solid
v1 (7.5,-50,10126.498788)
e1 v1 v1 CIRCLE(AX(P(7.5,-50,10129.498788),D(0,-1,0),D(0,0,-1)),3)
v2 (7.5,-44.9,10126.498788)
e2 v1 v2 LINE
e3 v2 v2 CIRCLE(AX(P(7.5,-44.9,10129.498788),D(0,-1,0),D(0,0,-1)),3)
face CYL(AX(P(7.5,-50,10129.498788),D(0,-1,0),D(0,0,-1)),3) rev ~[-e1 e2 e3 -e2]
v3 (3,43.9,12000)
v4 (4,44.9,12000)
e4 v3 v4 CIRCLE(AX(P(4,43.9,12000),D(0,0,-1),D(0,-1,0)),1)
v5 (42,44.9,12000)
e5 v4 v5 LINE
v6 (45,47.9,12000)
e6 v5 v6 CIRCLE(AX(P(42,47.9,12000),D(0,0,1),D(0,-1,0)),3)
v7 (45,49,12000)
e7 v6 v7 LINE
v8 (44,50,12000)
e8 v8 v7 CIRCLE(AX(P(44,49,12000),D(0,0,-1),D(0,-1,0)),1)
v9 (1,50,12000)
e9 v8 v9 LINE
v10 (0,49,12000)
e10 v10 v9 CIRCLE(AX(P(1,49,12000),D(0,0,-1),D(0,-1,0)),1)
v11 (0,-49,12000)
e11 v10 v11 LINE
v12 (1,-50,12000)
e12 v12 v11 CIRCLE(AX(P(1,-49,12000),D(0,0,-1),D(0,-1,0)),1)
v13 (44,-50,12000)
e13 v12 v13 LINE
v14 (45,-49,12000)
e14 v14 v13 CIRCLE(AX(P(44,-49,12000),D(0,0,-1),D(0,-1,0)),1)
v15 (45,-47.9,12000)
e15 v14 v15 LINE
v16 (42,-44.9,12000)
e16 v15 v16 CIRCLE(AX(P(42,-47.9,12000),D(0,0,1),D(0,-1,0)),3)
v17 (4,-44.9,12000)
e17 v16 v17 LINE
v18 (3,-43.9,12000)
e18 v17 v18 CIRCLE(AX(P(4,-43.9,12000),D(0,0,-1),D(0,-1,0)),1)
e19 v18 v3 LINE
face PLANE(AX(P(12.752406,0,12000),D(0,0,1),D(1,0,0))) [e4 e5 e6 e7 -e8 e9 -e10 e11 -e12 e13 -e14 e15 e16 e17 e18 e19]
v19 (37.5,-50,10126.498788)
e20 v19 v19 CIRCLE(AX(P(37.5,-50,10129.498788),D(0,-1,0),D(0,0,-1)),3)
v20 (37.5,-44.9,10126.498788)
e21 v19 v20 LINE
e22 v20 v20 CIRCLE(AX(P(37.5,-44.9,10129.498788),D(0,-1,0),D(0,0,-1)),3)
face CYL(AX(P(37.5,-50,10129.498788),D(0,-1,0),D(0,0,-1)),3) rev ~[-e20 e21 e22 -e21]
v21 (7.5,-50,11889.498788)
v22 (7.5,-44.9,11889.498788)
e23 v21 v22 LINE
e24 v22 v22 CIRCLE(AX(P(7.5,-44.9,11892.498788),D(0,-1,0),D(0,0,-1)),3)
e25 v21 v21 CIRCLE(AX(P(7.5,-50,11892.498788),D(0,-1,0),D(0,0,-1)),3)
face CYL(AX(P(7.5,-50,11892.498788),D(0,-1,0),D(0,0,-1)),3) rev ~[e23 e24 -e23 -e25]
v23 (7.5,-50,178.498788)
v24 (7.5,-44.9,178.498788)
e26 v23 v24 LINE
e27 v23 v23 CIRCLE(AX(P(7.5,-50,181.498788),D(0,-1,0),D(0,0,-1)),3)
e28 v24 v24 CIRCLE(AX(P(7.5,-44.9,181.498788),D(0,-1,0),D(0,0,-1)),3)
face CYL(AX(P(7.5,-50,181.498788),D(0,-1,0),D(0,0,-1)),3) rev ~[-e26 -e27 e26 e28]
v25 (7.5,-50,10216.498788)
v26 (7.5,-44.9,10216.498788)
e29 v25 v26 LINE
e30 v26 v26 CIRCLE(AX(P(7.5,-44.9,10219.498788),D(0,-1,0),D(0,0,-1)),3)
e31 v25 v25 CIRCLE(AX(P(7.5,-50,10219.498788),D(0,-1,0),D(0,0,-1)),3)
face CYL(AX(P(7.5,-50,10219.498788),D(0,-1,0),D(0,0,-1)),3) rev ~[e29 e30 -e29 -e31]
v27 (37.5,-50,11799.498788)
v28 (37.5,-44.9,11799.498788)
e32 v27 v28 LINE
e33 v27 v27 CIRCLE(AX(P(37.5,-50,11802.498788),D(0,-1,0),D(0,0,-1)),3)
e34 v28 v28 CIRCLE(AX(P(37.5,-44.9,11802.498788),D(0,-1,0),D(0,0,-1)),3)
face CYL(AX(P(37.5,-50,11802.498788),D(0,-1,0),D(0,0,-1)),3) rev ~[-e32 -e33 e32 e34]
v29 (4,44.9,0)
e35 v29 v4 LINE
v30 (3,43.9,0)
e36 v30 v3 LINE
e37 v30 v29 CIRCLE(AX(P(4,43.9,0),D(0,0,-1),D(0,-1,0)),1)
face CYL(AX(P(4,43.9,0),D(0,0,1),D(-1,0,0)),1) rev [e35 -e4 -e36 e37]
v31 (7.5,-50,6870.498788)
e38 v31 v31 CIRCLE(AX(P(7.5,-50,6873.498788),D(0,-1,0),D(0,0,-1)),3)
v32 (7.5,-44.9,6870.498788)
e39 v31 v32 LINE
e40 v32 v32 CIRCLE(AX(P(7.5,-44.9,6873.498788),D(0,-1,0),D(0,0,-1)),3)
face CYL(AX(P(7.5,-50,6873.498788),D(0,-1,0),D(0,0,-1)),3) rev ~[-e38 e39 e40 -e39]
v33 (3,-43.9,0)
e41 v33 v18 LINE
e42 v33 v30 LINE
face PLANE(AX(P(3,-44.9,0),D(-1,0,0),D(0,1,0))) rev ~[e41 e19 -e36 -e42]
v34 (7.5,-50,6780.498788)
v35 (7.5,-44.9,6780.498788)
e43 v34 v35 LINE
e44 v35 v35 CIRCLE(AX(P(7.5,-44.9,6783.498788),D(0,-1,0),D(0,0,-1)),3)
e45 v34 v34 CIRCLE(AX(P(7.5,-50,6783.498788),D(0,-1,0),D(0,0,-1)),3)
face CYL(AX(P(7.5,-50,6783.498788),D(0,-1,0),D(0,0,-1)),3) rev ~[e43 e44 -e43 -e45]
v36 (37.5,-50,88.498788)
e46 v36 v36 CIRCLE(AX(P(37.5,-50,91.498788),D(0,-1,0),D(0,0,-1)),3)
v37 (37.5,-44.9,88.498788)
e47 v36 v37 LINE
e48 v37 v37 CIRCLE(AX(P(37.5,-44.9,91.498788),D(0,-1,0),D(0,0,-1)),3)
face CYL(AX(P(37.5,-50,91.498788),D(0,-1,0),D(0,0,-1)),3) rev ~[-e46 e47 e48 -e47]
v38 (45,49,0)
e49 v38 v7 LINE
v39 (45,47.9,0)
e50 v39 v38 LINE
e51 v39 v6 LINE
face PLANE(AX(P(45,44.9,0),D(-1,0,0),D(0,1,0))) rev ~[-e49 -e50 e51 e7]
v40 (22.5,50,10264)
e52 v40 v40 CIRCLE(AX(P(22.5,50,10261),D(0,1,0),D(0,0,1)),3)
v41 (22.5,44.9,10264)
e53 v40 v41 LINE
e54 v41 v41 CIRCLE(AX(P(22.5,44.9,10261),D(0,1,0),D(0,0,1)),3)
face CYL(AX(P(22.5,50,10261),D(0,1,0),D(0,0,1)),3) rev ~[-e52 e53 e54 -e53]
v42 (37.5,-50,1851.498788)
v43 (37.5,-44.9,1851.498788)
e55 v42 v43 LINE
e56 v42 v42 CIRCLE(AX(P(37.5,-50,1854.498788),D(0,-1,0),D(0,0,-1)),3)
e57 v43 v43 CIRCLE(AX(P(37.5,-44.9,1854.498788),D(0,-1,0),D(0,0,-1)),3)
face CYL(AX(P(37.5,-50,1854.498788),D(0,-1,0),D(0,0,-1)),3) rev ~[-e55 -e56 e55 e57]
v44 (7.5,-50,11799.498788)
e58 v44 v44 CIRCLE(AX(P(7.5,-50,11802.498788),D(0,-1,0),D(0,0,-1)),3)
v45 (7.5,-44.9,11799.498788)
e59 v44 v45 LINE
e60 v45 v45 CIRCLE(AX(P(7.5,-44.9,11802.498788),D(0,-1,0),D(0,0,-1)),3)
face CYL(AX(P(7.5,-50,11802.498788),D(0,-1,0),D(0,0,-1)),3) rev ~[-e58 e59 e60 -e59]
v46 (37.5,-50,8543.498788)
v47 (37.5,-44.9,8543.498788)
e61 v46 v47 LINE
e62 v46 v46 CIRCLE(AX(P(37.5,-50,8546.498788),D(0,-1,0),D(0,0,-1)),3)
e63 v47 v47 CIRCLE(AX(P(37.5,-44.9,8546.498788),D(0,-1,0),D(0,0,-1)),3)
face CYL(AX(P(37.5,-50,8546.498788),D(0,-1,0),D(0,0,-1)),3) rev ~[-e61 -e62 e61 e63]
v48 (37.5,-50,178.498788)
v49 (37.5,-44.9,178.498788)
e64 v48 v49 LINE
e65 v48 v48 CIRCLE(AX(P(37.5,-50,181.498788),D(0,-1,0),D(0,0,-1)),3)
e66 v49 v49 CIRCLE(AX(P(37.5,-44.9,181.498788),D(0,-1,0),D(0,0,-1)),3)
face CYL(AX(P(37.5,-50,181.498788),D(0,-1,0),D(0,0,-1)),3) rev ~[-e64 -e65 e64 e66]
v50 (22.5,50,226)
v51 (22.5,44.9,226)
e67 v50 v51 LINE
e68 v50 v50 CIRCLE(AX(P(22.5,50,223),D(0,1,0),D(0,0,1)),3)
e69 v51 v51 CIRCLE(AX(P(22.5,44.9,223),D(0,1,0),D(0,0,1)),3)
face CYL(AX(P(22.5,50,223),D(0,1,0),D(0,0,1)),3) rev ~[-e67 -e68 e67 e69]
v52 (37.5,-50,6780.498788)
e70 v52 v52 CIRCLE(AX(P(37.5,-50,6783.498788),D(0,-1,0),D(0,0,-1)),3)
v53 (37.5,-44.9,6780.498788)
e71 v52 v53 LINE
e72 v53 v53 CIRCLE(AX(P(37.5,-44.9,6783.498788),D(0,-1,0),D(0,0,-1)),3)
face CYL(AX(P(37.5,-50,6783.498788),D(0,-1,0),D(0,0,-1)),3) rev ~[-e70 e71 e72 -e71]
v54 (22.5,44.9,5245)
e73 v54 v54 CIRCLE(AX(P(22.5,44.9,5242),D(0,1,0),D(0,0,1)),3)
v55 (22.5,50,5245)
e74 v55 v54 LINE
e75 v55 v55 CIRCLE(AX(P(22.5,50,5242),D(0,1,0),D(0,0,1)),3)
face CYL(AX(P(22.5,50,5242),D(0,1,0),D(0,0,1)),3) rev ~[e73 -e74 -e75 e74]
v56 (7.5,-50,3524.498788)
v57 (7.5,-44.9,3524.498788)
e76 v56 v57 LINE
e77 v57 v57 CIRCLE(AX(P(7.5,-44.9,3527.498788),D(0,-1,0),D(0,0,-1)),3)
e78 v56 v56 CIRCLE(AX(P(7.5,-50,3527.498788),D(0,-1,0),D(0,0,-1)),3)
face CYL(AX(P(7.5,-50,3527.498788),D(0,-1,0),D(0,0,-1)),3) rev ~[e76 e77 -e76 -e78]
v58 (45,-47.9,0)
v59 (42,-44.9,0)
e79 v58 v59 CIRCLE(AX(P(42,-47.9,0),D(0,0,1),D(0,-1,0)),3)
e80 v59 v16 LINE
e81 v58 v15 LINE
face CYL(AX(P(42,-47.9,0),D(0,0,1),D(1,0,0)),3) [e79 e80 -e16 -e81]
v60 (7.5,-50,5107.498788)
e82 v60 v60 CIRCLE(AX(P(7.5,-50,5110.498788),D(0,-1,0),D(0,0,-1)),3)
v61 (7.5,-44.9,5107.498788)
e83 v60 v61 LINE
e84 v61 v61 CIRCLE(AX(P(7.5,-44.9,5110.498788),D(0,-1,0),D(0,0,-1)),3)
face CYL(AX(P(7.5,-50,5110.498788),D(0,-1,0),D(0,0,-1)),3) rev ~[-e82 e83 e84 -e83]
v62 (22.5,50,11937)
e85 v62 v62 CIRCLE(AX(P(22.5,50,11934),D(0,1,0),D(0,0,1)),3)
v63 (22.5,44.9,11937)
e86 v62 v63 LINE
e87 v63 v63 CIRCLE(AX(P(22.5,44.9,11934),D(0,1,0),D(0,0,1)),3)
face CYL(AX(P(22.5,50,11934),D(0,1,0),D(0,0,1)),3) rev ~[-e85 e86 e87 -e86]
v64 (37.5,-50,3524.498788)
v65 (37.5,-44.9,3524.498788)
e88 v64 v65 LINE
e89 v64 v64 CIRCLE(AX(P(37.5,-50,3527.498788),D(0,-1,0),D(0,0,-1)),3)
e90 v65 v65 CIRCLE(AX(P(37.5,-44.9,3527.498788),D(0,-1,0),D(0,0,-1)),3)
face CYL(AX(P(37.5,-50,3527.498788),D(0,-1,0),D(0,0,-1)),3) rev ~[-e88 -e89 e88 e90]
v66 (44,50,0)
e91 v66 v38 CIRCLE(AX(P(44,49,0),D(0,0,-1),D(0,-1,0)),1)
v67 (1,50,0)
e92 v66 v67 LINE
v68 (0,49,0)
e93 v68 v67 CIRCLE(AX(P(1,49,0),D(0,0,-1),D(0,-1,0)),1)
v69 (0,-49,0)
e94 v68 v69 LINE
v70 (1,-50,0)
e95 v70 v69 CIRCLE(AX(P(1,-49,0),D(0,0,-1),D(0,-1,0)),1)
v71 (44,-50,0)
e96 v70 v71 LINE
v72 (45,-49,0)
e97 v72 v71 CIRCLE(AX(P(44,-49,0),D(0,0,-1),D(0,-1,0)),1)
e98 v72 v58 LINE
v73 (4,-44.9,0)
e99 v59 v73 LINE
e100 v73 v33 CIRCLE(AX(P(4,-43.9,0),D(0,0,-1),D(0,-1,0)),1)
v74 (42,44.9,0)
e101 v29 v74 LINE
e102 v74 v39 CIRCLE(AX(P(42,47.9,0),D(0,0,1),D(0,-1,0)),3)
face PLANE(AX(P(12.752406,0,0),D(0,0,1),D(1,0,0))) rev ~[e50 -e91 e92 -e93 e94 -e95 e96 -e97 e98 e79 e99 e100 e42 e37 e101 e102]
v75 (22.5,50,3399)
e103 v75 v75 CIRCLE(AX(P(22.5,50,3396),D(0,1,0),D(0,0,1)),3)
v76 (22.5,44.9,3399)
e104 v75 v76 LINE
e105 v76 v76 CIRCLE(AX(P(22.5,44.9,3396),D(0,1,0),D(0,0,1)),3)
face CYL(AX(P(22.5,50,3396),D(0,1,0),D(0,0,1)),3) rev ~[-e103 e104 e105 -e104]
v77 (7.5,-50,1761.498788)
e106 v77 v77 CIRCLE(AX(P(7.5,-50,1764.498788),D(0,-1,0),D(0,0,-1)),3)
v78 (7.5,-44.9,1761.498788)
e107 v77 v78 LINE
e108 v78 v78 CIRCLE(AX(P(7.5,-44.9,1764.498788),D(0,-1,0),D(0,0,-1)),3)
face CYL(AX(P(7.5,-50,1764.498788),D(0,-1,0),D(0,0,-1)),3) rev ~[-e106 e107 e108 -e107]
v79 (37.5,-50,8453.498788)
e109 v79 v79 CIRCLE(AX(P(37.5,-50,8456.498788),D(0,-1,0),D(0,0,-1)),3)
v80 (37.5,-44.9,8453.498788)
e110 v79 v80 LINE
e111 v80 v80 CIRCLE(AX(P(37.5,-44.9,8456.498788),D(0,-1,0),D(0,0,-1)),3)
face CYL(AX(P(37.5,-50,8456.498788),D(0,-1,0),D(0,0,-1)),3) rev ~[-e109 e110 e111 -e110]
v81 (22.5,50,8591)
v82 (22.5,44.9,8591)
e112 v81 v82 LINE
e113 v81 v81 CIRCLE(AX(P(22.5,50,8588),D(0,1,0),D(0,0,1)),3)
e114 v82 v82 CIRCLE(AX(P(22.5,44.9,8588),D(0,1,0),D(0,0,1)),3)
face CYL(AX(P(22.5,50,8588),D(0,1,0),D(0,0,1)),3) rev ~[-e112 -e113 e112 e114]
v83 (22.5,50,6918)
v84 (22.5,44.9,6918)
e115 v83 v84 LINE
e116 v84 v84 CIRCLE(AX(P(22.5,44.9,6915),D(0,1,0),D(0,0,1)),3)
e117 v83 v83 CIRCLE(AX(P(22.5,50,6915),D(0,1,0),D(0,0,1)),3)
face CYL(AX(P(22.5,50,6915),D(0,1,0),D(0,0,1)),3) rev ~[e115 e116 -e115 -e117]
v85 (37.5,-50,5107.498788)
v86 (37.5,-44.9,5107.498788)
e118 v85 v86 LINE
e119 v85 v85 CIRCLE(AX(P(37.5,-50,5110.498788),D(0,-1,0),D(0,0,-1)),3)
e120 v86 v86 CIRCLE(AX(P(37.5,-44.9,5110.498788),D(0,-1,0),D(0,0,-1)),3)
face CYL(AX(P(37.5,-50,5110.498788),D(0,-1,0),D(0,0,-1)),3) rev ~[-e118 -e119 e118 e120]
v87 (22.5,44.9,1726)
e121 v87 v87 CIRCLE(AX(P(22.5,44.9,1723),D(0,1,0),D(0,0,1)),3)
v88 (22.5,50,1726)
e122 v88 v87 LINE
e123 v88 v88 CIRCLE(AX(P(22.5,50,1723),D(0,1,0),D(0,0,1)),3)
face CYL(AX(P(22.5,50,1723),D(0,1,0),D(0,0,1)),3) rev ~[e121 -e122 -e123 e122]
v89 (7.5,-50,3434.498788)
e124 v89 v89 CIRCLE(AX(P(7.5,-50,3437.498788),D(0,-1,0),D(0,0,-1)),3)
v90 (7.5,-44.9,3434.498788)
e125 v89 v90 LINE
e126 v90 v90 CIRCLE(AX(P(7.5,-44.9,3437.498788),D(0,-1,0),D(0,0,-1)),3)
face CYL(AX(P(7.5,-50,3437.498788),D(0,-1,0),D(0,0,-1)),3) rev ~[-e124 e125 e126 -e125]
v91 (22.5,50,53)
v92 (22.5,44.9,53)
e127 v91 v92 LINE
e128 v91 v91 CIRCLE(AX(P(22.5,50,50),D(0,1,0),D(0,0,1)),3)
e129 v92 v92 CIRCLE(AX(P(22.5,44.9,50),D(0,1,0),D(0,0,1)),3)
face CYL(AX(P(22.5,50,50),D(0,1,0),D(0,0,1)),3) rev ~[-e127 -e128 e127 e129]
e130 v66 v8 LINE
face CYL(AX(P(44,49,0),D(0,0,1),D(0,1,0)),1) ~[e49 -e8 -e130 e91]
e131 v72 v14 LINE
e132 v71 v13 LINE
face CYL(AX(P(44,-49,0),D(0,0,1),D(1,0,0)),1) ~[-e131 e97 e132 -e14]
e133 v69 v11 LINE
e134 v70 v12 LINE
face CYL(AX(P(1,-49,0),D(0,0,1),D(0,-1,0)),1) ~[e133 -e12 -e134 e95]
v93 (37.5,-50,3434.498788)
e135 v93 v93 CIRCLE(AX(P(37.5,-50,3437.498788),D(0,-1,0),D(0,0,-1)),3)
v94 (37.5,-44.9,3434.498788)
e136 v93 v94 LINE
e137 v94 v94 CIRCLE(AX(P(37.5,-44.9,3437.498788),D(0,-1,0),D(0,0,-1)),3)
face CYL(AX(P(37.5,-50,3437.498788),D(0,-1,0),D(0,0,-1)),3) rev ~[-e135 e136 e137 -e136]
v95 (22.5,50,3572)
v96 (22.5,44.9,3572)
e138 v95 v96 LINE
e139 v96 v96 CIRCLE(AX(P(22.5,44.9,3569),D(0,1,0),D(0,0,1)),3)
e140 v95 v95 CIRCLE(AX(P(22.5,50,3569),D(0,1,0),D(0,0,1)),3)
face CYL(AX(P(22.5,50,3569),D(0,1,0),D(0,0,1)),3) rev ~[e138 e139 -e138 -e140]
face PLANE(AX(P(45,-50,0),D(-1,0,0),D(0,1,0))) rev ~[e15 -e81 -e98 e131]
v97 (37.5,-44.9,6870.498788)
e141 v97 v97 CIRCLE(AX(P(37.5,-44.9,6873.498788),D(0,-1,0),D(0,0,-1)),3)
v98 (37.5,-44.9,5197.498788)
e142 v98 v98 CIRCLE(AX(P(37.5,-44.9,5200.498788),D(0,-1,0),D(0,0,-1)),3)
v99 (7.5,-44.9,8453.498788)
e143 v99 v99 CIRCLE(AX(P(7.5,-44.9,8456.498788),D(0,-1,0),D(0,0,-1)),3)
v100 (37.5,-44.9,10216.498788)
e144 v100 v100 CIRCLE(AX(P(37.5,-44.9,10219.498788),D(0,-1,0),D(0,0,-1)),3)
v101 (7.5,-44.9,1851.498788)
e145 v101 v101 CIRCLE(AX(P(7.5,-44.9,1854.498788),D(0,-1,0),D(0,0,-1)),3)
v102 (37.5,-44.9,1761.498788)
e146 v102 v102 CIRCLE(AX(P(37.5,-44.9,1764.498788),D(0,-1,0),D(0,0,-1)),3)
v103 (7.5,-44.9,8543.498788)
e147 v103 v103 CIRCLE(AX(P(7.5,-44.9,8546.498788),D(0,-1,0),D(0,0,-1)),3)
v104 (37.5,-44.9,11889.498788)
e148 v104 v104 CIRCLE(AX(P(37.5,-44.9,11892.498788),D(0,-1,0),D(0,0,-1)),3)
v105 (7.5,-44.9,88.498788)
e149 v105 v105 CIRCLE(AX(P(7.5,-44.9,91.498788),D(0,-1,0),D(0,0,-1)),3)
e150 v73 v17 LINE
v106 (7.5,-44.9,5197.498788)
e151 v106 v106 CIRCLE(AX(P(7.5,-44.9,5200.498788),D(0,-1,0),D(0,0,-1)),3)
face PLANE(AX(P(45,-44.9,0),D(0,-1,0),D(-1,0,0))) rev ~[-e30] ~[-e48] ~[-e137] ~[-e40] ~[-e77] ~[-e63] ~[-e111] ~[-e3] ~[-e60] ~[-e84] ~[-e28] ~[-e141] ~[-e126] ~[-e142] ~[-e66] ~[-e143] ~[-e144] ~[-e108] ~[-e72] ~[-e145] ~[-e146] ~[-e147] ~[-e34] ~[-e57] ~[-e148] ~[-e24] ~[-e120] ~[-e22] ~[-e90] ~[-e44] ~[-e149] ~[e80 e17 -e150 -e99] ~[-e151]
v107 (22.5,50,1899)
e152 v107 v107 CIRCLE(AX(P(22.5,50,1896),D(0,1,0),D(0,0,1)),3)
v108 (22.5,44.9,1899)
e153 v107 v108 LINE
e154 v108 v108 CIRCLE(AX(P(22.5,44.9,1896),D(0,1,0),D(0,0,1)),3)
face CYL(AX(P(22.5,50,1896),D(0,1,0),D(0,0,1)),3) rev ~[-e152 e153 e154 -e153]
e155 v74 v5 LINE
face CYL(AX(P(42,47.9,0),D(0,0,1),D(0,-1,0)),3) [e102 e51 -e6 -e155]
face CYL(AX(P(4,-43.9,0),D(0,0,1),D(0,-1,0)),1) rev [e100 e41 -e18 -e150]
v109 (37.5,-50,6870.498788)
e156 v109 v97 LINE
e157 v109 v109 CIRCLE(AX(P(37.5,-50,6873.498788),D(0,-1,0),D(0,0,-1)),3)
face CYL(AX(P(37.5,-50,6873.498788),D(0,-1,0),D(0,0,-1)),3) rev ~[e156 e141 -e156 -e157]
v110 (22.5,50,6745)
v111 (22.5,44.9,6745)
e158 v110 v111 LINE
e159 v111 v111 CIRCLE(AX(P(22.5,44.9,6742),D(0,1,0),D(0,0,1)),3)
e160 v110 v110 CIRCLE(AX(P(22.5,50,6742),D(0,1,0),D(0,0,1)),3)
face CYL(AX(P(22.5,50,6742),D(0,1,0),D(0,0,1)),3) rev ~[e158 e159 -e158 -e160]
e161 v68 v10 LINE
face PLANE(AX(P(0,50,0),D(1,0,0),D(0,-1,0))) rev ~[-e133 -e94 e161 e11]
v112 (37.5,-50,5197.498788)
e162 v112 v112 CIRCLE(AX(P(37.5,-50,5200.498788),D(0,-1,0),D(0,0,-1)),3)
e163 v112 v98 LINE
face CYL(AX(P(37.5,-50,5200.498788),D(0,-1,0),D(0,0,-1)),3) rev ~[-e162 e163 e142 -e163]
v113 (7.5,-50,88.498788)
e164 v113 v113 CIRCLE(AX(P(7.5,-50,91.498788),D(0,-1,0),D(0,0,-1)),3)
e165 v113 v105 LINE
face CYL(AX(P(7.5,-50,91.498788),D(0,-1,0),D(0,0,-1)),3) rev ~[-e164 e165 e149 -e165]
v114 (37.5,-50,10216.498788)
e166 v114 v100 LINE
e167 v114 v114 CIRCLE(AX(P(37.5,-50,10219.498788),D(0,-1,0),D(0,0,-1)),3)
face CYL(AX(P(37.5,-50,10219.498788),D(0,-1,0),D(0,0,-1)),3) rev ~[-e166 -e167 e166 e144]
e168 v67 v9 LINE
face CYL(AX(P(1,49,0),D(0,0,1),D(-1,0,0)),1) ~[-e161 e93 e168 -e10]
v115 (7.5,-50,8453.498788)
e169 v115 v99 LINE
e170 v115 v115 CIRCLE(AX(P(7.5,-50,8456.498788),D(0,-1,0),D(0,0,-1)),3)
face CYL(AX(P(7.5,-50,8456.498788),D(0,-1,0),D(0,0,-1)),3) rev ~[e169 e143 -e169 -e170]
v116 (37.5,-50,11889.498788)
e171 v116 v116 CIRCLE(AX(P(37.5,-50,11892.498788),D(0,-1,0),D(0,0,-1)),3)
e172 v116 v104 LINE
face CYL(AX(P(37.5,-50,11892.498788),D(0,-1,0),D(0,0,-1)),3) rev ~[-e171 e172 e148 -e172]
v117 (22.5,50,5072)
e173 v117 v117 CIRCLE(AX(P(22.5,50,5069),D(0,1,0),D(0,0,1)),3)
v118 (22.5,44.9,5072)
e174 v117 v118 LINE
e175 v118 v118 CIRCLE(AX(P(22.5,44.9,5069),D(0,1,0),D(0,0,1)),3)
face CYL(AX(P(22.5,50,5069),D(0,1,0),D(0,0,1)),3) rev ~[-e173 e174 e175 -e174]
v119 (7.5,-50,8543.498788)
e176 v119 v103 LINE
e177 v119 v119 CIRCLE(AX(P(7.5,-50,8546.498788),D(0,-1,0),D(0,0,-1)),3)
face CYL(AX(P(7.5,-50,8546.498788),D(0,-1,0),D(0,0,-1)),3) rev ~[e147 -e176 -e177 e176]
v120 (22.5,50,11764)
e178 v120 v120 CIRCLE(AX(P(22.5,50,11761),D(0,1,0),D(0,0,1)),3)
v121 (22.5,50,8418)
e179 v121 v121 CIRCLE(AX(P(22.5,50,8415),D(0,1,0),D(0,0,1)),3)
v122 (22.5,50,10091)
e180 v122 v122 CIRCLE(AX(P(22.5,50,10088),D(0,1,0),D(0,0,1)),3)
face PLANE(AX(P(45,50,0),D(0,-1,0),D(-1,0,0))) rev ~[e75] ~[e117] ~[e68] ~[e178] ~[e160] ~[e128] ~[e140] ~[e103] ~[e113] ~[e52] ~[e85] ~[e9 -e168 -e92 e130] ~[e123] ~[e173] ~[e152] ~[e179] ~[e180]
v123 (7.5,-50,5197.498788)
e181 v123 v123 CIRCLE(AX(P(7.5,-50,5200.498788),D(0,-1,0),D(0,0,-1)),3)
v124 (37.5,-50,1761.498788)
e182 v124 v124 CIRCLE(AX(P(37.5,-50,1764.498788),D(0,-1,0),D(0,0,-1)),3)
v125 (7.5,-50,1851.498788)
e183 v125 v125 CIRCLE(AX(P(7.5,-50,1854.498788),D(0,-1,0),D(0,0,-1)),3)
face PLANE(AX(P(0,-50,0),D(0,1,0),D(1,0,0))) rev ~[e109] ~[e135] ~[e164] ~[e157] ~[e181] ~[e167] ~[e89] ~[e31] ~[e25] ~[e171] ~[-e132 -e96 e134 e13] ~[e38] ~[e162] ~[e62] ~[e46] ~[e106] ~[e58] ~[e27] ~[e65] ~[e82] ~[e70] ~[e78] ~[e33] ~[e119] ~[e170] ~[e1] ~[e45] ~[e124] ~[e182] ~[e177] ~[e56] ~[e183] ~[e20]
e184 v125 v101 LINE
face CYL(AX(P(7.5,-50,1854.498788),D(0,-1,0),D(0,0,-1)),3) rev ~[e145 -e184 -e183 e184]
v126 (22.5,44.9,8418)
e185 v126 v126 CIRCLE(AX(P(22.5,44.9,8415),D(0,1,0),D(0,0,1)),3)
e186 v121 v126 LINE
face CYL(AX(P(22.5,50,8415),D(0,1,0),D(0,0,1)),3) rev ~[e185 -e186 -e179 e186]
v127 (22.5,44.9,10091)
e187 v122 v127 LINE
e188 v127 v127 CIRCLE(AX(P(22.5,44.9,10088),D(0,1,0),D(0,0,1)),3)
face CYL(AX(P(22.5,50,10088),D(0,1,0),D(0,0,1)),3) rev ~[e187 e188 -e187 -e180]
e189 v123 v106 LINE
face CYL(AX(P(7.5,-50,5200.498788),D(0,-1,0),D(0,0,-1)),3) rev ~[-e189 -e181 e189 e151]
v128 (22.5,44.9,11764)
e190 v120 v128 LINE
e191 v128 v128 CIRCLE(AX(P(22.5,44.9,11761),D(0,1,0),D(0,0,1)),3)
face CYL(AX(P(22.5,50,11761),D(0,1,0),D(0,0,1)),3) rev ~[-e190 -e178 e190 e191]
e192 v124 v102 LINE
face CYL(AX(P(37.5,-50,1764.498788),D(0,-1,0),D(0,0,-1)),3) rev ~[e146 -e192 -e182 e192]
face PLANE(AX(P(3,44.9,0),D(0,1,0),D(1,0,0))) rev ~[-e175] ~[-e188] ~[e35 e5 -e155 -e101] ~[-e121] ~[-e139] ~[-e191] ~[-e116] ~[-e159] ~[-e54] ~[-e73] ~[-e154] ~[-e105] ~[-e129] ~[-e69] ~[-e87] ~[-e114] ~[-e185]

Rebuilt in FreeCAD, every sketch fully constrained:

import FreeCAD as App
import Part
import Sketcher

V = App.Vector
Q = App.Units.Quantity


def edges_at(feature, points):
    """Names of the edges that pass closest to the given points."""
    edges = feature.Shape.Edges
    near = lambda p: min(range(len(edges)), key=lambda i: edges[i].distToShape(Part.Vertex(*p))[0])
    return sorted({f"Edge{near(p) + 1}" for p in points})

doc = App.newDocument("Part")
params = doc.addObject("Spreadsheet::Sheet", "Params")
for row, (alias, value) in enumerate([
    ("sketch1_width", "45 mm"),
    ("sketch1_width2", "42 mm"),
    ("sketch1_height", "100 mm"),
    ("sketch1_height2", "5.1 mm"),
    ("pad1_length", "12000 mm"),
    ("fillet_radius", "3 mm"),
    ("fillet2_radius", "1 mm"),
    ("fillet3_radius", "1 mm"),
    ("sketch2_diameter", "6 mm"),
    ("sketch3_diameter", "6 mm"),
    ("sketch4_diameter", "6 mm"),
    ("sketch5_diameter", "6 mm"),
    ("sketch6_diameter", "6 mm"),
    ("sketch7_diameter", "6 mm"),
    ("sketch8_diameter", "6 mm"),
    ("sketch9_diameter", "6 mm"),
    ("sketch10_diameter", "6 mm"),
    ("sketch11_diameter", "6 mm"),
    ("sketch12_diameter", "6 mm"),
    ("sketch13_diameter", "6 mm"),
    ("sketch14_diameter", "6 mm"),
    ("sketch15_diameter", "6 mm"),
    ("sketch16_diameter", "6 mm"),
    ("sketch17_diameter", "6 mm"),
    ("sketch18_diameter", "6 mm"),
    ("pocket17_length", "10 mm"),
], start=1):
    params.set(f"A{row}", alias)
    params.set(f"B{row}", "=" + value)
    params.setAlias(f"B{row}", alias)

body = doc.addObject("PartDesign::Body", "Body")

sketch1 = doc.addObject("Sketcher::SketchObject", "Sketch")
body.addObject(sketch1)
sketch1.AttachmentSupport = (doc.XY_Plane, [""])
sketch1.MapMode = "FlatFace"
sketch1.addGeometry(Part.LineSegment(V(0, 50, 0), V(0, -50, 0)), False)
sketch1.addGeometry(Part.LineSegment(V(0, -50, 0), V(45, -50, 0)), False)
sketch1.addGeometry(Part.LineSegment(V(45, -50, 0), V(45, -44.9, 0)), False)
sketch1.addGeometry(Part.LineSegment(V(45, -44.9, 0), V(3, -44.9, 0)), False)
sketch1.addGeometry(Part.LineSegment(V(3, -44.9, 0), V(3, 44.9, 0)), False)
sketch1.addGeometry(Part.LineSegment(V(3, 44.9, 0), V(45, 44.9, 0)), False)
sketch1.addGeometry(Part.LineSegment(V(45, 44.9, 0), V(45, 50, 0)), False)
sketch1.addGeometry(Part.LineSegment(V(45, 50, 0), V(0, 50, 0)), False)
sketch1.addConstraint(Sketcher.Constraint("Coincident", 0, 2, 1, 1))
sketch1.addConstraint(Sketcher.Constraint("Coincident", 1, 2, 2, 1))
sketch1.addConstraint(Sketcher.Constraint("Coincident", 2, 2, 3, 1))
sketch1.addConstraint(Sketcher.Constraint("Coincident", 3, 2, 4, 1))
sketch1.addConstraint(Sketcher.Constraint("Coincident", 4, 2, 5, 1))
sketch1.addConstraint(Sketcher.Constraint("Coincident", 5, 2, 6, 1))
sketch1.addConstraint(Sketcher.Constraint("Coincident", 6, 2, 7, 1))
sketch1.addConstraint(Sketcher.Constraint("Coincident", 7, 2, 0, 1))
sketch1.addConstraint(Sketcher.Constraint("Vertical", 0))
sketch1.addConstraint(Sketcher.Constraint("Horizontal", 1))
sketch1.addConstraint(Sketcher.Constraint("Vertical", 2))
sketch1.addConstraint(Sketcher.Constraint("Horizontal", 3))
sketch1.addConstraint(Sketcher.Constraint("Vertical", 4))
sketch1.addConstraint(Sketcher.Constraint("Horizontal", 5))
sketch1.addConstraint(Sketcher.Constraint("Vertical", 6))
sketch1.addConstraint(Sketcher.Constraint("Horizontal", 7))
sketch1.addConstraint(Sketcher.Constraint("Symmetric", 0, 2, 7, 2, -1, 1))
sketch1.addConstraint(Sketcher.Constraint("Symmetric", 2, 2, 5, 2, -1))
sketch1.addConstraint(Sketcher.Constraint("DistanceX", 1, 1, 1, 2, Q("45 mm")))
sketch1.addConstraint(Sketcher.Constraint("DistanceX", 3, 2, 3, 1, Q("42 mm")))
sketch1.addConstraint(Sketcher.Constraint("DistanceY", 0, 2, 0, 1, Q("100 mm")))
sketch1.addConstraint(Sketcher.Constraint("DistanceY", 2, 1, 2, 2, Q("5.1 mm")))
sketch1.setExpression("Constraints[18]", "Params.sketch1_width")
sketch1.setExpression("Constraints[19]", "Params.sketch1_width2")
sketch1.setExpression("Constraints[20]", "Params.sketch1_height")
sketch1.setExpression("Constraints[21]", "Params.sketch1_height2")
pad1 = doc.addObject("PartDesign::Pad", "Pad")
body.addObject(pad1)
pad1.Profile = sketch1
pad1.setExpression("Length", "Params.pad1_length")
doc.recompute()

fillet = doc.addObject("PartDesign::Fillet", "Fillet")
body.addObject(fillet)
fillet.Base = (pad1, edges_at(pad1, [(45, -44.9, 6000), (45, 44.9, 6000)]))
fillet.setExpression("Radius", "Params.fillet_radius")
doc.recompute()

fillet2 = doc.addObject("PartDesign::Fillet", "Fillet001")
body.addObject(fillet2)
fillet2.Base = (fillet, edges_at(fillet, [
    (45, -50, 6000),
    (0, -50, 6000),
    (0, 50, 6000),
    (45, 50, 6000),
]))
fillet2.setExpression("Radius", "Params.fillet2_radius")
doc.recompute()

fillet3 = doc.addObject("PartDesign::Fillet", "Fillet002")
body.addObject(fillet3)
fillet3.Base = (fillet2, edges_at(fillet2, [(3, -44.9, 6000), (3, 44.9, 6000)]))
fillet3.setExpression("Radius", "Params.fillet3_radius")

sketch2 = doc.addObject("Sketcher::SketchObject", "Sketch001")
body.addObject(sketch2)
sketch2.AttachmentSupport = (doc.XZ_Plane, [""])
sketch2.MapMode = "FlatFace"
sketch2.AttachmentOffset = App.Placement(V(0, 0, -50), App.Rotation())
sketch2.addGeometry(Part.Circle(V(22.5, 50, 0), V(0, 0, 1), 3), False)
sketch2.addConstraint(Sketcher.Constraint("Diameter", 0, Q("6 mm")))
sketch2.addConstraint(Sketcher.Constraint("DistanceY", -1, 1, 0, 3, Q("50 mm")))
sketch2.addConstraint(Sketcher.Constraint("DistanceX", -1, 1, 0, 3, Q("22.5 mm")))
sketch2.setExpression("Constraints[0]", "Params.sketch2_diameter")
pocket1 = doc.addObject("PartDesign::Pocket", "Pocket")
body.addObject(pocket1)
pocket1.Profile = sketch2
pocket1.Type = "UpToFirst"
pocket1.Reversed = True

sketch3 = doc.addObject("Sketcher::SketchObject", "Sketch002")
body.addObject(sketch3)
sketch3.AttachmentSupport = (doc.XZ_Plane, [""])
sketch3.MapMode = "FlatFace"
sketch3.AttachmentOffset = App.Placement(V(0, 0, -50), App.Rotation())
sketch3.addGeometry(Part.Circle(V(22.5, 223, 0), V(0, 0, 1), 3), False)
sketch3.addConstraint(Sketcher.Constraint("Diameter", 0, Q("6 mm")))
sketch3.addConstraint(Sketcher.Constraint("DistanceY", -1, 1, 0, 3, Q("223 mm")))
sketch3.addConstraint(Sketcher.Constraint("DistanceX", -1, 1, 0, 3, Q("22.5 mm")))
sketch3.setExpression("Constraints[0]", "Params.sketch3_diameter")
pocket2 = doc.addObject("PartDesign::Pocket", "Pocket001")
body.addObject(pocket2)
pocket2.Profile = sketch3
pocket2.Type = "UpToFirst"
pocket2.Reversed = True

sketch4 = doc.addObject("Sketcher::SketchObject", "Sketch003")
body.addObject(sketch4)
sketch4.AttachmentSupport = (doc.XZ_Plane, [""])
sketch4.MapMode = "FlatFace"
sketch4.AttachmentOffset = App.Placement(V(0, 0, -50), App.Rotation())
sketch4.addGeometry(Part.Circle(V(22.5, 1723, 0), V(0, 0, 1), 3), False)
sketch4.addConstraint(Sketcher.Constraint("Diameter", 0, Q("6 mm")))
sketch4.addConstraint(Sketcher.Constraint("DistanceY", -1, 1, 0, 3, Q("1723 mm")))
sketch4.addConstraint(Sketcher.Constraint("DistanceX", -1, 1, 0, 3, Q("22.5 mm")))
sketch4.setExpression("Constraints[0]", "Params.sketch4_diameter")
pocket3 = doc.addObject("PartDesign::Pocket", "Pocket002")
body.addObject(pocket3)
pocket3.Profile = sketch4
pocket3.Type = "UpToFirst"
pocket3.Reversed = True

sketch5 = doc.addObject("Sketcher::SketchObject", "Sketch004")
body.addObject(sketch5)
sketch5.AttachmentSupport = (doc.XZ_Plane, [""])
sketch5.MapMode = "FlatFace"
sketch5.AttachmentOffset = App.Placement(V(0, 0, -50), App.Rotation())
sketch5.addGeometry(Part.Circle(V(22.5, 1896, 0), V(0, 0, 1), 3), False)
sketch5.addConstraint(Sketcher.Constraint("Diameter", 0, Q("6 mm")))
sketch5.addConstraint(Sketcher.Constraint("DistanceY", -1, 1, 0, 3, Q("1896 mm")))
sketch5.addConstraint(Sketcher.Constraint("DistanceX", -1, 1, 0, 3, Q("22.5 mm")))
sketch5.setExpression("Constraints[0]", "Params.sketch5_diameter")
pocket4 = doc.addObject("PartDesign::Pocket", "Pocket003")
body.addObject(pocket4)
pocket4.Profile = sketch5
pocket4.Type = "UpToFirst"
pocket4.Reversed = True

sketch6 = doc.addObject("Sketcher::SketchObject", "Sketch005")
body.addObject(sketch6)
sketch6.AttachmentSupport = (doc.XZ_Plane, [""])
sketch6.MapMode = "FlatFace"
sketch6.AttachmentOffset = App.Placement(V(0, 0, -50), App.Rotation())
sketch6.addGeometry(Part.Circle(V(22.5, 3396, 0), V(0, 0, 1), 3), False)
sketch6.addConstraint(Sketcher.Constraint("Diameter", 0, Q("6 mm")))
sketch6.addConstraint(Sketcher.Constraint("DistanceY", -1, 1, 0, 3, Q("3396 mm")))
sketch6.addConstraint(Sketcher.Constraint("DistanceX", -1, 1, 0, 3, Q("22.5 mm")))
sketch6.setExpression("Constraints[0]", "Params.sketch6_diameter")
pocket5 = doc.addObject("PartDesign::Pocket", "Pocket004")
body.addObject(pocket5)
pocket5.Profile = sketch6
pocket5.Type = "UpToFirst"
pocket5.Reversed = True

sketch7 = doc.addObject("Sketcher::SketchObject", "Sketch006")
body.addObject(sketch7)
sketch7.AttachmentSupport = (doc.XZ_Plane, [""])
sketch7.MapMode = "FlatFace"
sketch7.AttachmentOffset = App.Placement(V(0, 0, -50), App.Rotation())
sketch7.addGeometry(Part.Circle(V(22.5, 3569, 0), V(0, 0, 1), 3), False)
sketch7.addConstraint(Sketcher.Constraint("Diameter", 0, Q("6 mm")))
sketch7.addConstraint(Sketcher.Constraint("DistanceY", -1, 1, 0, 3, Q("3569 mm")))
sketch7.addConstraint(Sketcher.Constraint("DistanceX", -1, 1, 0, 3, Q("22.5 mm")))
sketch7.setExpression("Constraints[0]", "Params.sketch7_diameter")
pocket6 = doc.addObject("PartDesign::Pocket", "Pocket005")
body.addObject(pocket6)
pocket6.Profile = sketch7
pocket6.Type = "UpToFirst"
pocket6.Reversed = True

sketch8 = doc.addObject("Sketcher::SketchObject", "Sketch007")
body.addObject(sketch8)
sketch8.AttachmentSupport = (doc.XZ_Plane, [""])
sketch8.MapMode = "FlatFace"
sketch8.AttachmentOffset = App.Placement(V(0, 0, -50), App.Rotation())
sketch8.addGeometry(Part.Circle(V(22.5, 5069, 0), V(0, 0, 1), 3), False)
sketch8.addConstraint(Sketcher.Constraint("Diameter", 0, Q("6 mm")))
sketch8.addConstraint(Sketcher.Constraint("DistanceY", -1, 1, 0, 3, Q("5069 mm")))
sketch8.addConstraint(Sketcher.Constraint("DistanceX", -1, 1, 0, 3, Q("22.5 mm")))
sketch8.setExpression("Constraints[0]", "Params.sketch8_diameter")
pocket7 = doc.addObject("PartDesign::Pocket", "Pocket006")
body.addObject(pocket7)
pocket7.Profile = sketch8
pocket7.Type = "UpToFirst"
pocket7.Reversed = True

sketch9 = doc.addObject("Sketcher::SketchObject", "Sketch008")
body.addObject(sketch9)
sketch9.AttachmentSupport = (doc.XZ_Plane, [""])
sketch9.MapMode = "FlatFace"
sketch9.AttachmentOffset = App.Placement(V(0, 0, -50), App.Rotation())
sketch9.addGeometry(Part.Circle(V(22.5, 5242, 0), V(0, 0, 1), 3), False)
sketch9.addConstraint(Sketcher.Constraint("Diameter", 0, Q("6 mm")))
sketch9.addConstraint(Sketcher.Constraint("DistanceY", -1, 1, 0, 3, Q("5242 mm")))
sketch9.addConstraint(Sketcher.Constraint("DistanceX", -1, 1, 0, 3, Q("22.5 mm")))
sketch9.setExpression("Constraints[0]", "Params.sketch9_diameter")
pocket8 = doc.addObject("PartDesign::Pocket", "Pocket007")
body.addObject(pocket8)
pocket8.Profile = sketch9
pocket8.Type = "UpToFirst"
pocket8.Reversed = True

sketch10 = doc.addObject("Sketcher::SketchObject", "Sketch009")
body.addObject(sketch10)
sketch10.AttachmentSupport = (doc.XZ_Plane, [""])
sketch10.MapMode = "FlatFace"
sketch10.AttachmentOffset = App.Placement(V(0, 0, -50), App.Rotation())
sketch10.addGeometry(Part.Circle(V(22.5, 6742, 0), V(0, 0, 1), 3), False)
sketch10.addConstraint(Sketcher.Constraint("Diameter", 0, Q("6 mm")))
sketch10.addConstraint(Sketcher.Constraint("DistanceY", -1, 1, 0, 3, Q("6742 mm")))
sketch10.addConstraint(Sketcher.Constraint("DistanceX", -1, 1, 0, 3, Q("22.5 mm")))
sketch10.setExpression("Constraints[0]", "Params.sketch10_diameter")
pocket9 = doc.addObject("PartDesign::Pocket", "Pocket008")
body.addObject(pocket9)
pocket9.Profile = sketch10
pocket9.Type = "UpToFirst"
pocket9.Reversed = True

sketch11 = doc.addObject("Sketcher::SketchObject", "Sketch010")
body.addObject(sketch11)
sketch11.AttachmentSupport = (doc.XZ_Plane, [""])
sketch11.MapMode = "FlatFace"
sketch11.AttachmentOffset = App.Placement(V(0, 0, -50), App.Rotation())
sketch11.addGeometry(Part.Circle(V(22.5, 6915, 0), V(0, 0, 1), 3), False)
sketch11.addConstraint(Sketcher.Constraint("Diameter", 0, Q("6 mm")))
sketch11.addConstraint(Sketcher.Constraint("DistanceY", -1, 1, 0, 3, Q("6915 mm")))
sketch11.addConstraint(Sketcher.Constraint("DistanceX", -1, 1, 0, 3, Q("22.5 mm")))
sketch11.setExpression("Constraints[0]", "Params.sketch11_diameter")
pocket10 = doc.addObject("PartDesign::Pocket", "Pocket009")
body.addObject(pocket10)
pocket10.Profile = sketch11
pocket10.Type = "UpToFirst"
pocket10.Reversed = True

sketch12 = doc.addObject("Sketcher::SketchObject", "Sketch011")
body.addObject(sketch12)
sketch12.AttachmentSupport = (doc.XZ_Plane, [""])
sketch12.MapMode = "FlatFace"
sketch12.AttachmentOffset = App.Placement(V(0, 0, -50), App.Rotation())
sketch12.addGeometry(Part.Circle(V(22.5, 8415, 0), V(0, 0, 1), 3), False)
sketch12.addConstraint(Sketcher.Constraint("Diameter", 0, Q("6 mm")))
sketch12.addConstraint(Sketcher.Constraint("DistanceY", -1, 1, 0, 3, Q("8415 mm")))
sketch12.addConstraint(Sketcher.Constraint("DistanceX", -1, 1, 0, 3, Q("22.5 mm")))
sketch12.setExpression("Constraints[0]", "Params.sketch12_diameter")
pocket11 = doc.addObject("PartDesign::Pocket", "Pocket010")
body.addObject(pocket11)
pocket11.Profile = sketch12
pocket11.Type = "UpToFirst"
pocket11.Reversed = True

sketch13 = doc.addObject("Sketcher::SketchObject", "Sketch012")
body.addObject(sketch13)
sketch13.AttachmentSupport = (doc.XZ_Plane, [""])
sketch13.MapMode = "FlatFace"
sketch13.AttachmentOffset = App.Placement(V(0, 0, -50), App.Rotation())
sketch13.addGeometry(Part.Circle(V(22.5, 8588, 0), V(0, 0, 1), 3), False)
sketch13.addConstraint(Sketcher.Constraint("Diameter", 0, Q("6 mm")))
sketch13.addConstraint(Sketcher.Constraint("DistanceY", -1, 1, 0, 3, Q("8588 mm")))
sketch13.addConstraint(Sketcher.Constraint("DistanceX", -1, 1, 0, 3, Q("22.5 mm")))
sketch13.setExpression("Constraints[0]", "Params.sketch13_diameter")
pocket12 = doc.addObject("PartDesign::Pocket", "Pocket011")
body.addObject(pocket12)
pocket12.Profile = sketch13
pocket12.Type = "UpToFirst"
pocket12.Reversed = True

sketch14 = doc.addObject("Sketcher::SketchObject", "Sketch013")
body.addObject(sketch14)
sketch14.AttachmentSupport = (doc.XZ_Plane, [""])
sketch14.MapMode = "FlatFace"
sketch14.AttachmentOffset = App.Placement(V(0, 0, -50), App.Rotation())
sketch14.addGeometry(Part.Circle(V(22.5, 10088, 0), V(0, 0, 1), 3), False)
sketch14.addConstraint(Sketcher.Constraint("Diameter", 0, Q("6 mm")))
sketch14.addConstraint(Sketcher.Constraint("DistanceY", -1, 1, 0, 3, Q("10088 mm")))
sketch14.addConstraint(Sketcher.Constraint("DistanceX", -1, 1, 0, 3, Q("22.5 mm")))
sketch14.setExpression("Constraints[0]", "Params.sketch14_diameter")
pocket13 = doc.addObject("PartDesign::Pocket", "Pocket012")
body.addObject(pocket13)
pocket13.Profile = sketch14
pocket13.Type = "UpToFirst"
pocket13.Reversed = True

sketch15 = doc.addObject("Sketcher::SketchObject", "Sketch014")
body.addObject(sketch15)
sketch15.AttachmentSupport = (doc.XZ_Plane, [""])
sketch15.MapMode = "FlatFace"
sketch15.AttachmentOffset = App.Placement(V(0, 0, -50), App.Rotation())
sketch15.addGeometry(Part.Circle(V(22.5, 10261, 0), V(0, 0, 1), 3), False)
sketch15.addConstraint(Sketcher.Constraint("Diameter", 0, Q("6 mm")))
sketch15.addConstraint(Sketcher.Constraint("DistanceY", -1, 1, 0, 3, Q("10261 mm")))
sketch15.addConstraint(Sketcher.Constraint("DistanceX", -1, 1, 0, 3, Q("22.5 mm")))
sketch15.setExpression("Constraints[0]", "Params.sketch15_diameter")
pocket14 = doc.addObject("PartDesign::Pocket", "Pocket013")
body.addObject(pocket14)
pocket14.Profile = sketch15
pocket14.Type = "UpToFirst"
pocket14.Reversed = True

sketch16 = doc.addObject("Sketcher::SketchObject", "Sketch015")
body.addObject(sketch16)
sketch16.AttachmentSupport = (doc.XZ_Plane, [""])
sketch16.MapMode = "FlatFace"
sketch16.AttachmentOffset = App.Placement(V(0, 0, -50), App.Rotation())
sketch16.addGeometry(Part.Circle(V(22.5, 11761, 0), V(0, 0, 1), 3), False)
sketch16.addConstraint(Sketcher.Constraint("Diameter", 0, Q("6 mm")))
sketch16.addConstraint(Sketcher.Constraint("DistanceY", -1, 1, 0, 3, Q("11761 mm")))
sketch16.addConstraint(Sketcher.Constraint("DistanceX", -1, 1, 0, 3, Q("22.5 mm")))
sketch16.setExpression("Constraints[0]", "Params.sketch16_diameter")
pocket15 = doc.addObject("PartDesign::Pocket", "Pocket014")
body.addObject(pocket15)
pocket15.Profile = sketch16
pocket15.Type = "UpToFirst"
pocket15.Reversed = True

sketch17 = doc.addObject("Sketcher::SketchObject", "Sketch016")
body.addObject(sketch17)
sketch17.AttachmentSupport = (doc.XZ_Plane, [""])
sketch17.MapMode = "FlatFace"
sketch17.AttachmentOffset = App.Placement(V(0, 0, -50), App.Rotation())
sketch17.addGeometry(Part.Circle(V(22.5, 11934, 0), V(0, 0, 1), 3), False)
sketch17.addConstraint(Sketcher.Constraint("Diameter", 0, Q("6 mm")))
sketch17.addConstraint(Sketcher.Constraint("DistanceY", -1, 1, 0, 3, Q("11934 mm")))
sketch17.addConstraint(Sketcher.Constraint("DistanceX", -1, 1, 0, 3, Q("22.5 mm")))
sketch17.setExpression("Constraints[0]", "Params.sketch17_diameter")
pocket16 = doc.addObject("PartDesign::Pocket", "Pocket015")
body.addObject(pocket16)
pocket16.Profile = sketch17
pocket16.Type = "UpToFirst"
pocket16.Reversed = True

sketch18 = doc.addObject("Sketcher::SketchObject", "Sketch017")
body.addObject(sketch18)
sketch18.AttachmentSupport = (doc.XZ_Plane, [""])
sketch18.MapMode = "FlatFace"
sketch18.AttachmentOffset = App.Placement(V(0, 0, 50), App.Rotation())
sketch18.addGeometry(Part.Circle(V(7.5, 10219.498788, 0), V(0, 0, 1), 3), False)
sketch18.addGeometry(Part.Circle(V(37.5, 10219.498788, 0), V(0, 0, 1), 3), False)
sketch18.addGeometry(Part.Circle(V(37.5, 10129.498788, 0), V(0, 0, 1), 3), False)
sketch18.addGeometry(Part.Circle(V(7.5, 10129.498788, 0), V(0, 0, 1), 3), False)
sketch18.addGeometry(Part.Circle(V(7.5, 8546.498788, 0), V(0, 0, 1), 3), False)
sketch18.addGeometry(Part.Circle(V(37.5, 8546.498788, 0), V(0, 0, 1), 3), False)
sketch18.addGeometry(Part.Circle(V(37.5, 8456.498788, 0), V(0, 0, 1), 3), False)
sketch18.addGeometry(Part.Circle(V(7.5, 8456.498788, 0), V(0, 0, 1), 3), False)
sketch18.addGeometry(Part.Circle(V(7.5, 6873.498788, 0), V(0, 0, 1), 3), False)
sketch18.addGeometry(Part.Circle(V(37.5, 6873.498788, 0), V(0, 0, 1), 3), False)
sketch18.addGeometry(Part.Circle(V(37.5, 6783.498788, 0), V(0, 0, 1), 3), False)
sketch18.addGeometry(Part.Circle(V(7.5, 6783.498788, 0), V(0, 0, 1), 3), False)
sketch18.addGeometry(Part.Circle(V(7.5, 5200.498788, 0), V(0, 0, 1), 3), False)
sketch18.addGeometry(Part.Circle(V(37.5, 5200.498788, 0), V(0, 0, 1), 3), False)
sketch18.addGeometry(Part.Circle(V(37.5, 5110.498788, 0), V(0, 0, 1), 3), False)
sketch18.addGeometry(Part.Circle(V(7.5, 5110.498788, 0), V(0, 0, 1), 3), False)
sketch18.addGeometry(Part.Circle(V(7.5, 3527.498788, 0), V(0, 0, 1), 3), False)
sketch18.addGeometry(Part.Circle(V(37.5, 3527.498788, 0), V(0, 0, 1), 3), False)
sketch18.addGeometry(Part.Circle(V(37.5, 3437.498788, 0), V(0, 0, 1), 3), False)
sketch18.addGeometry(Part.Circle(V(7.5, 3437.498788, 0), V(0, 0, 1), 3), False)
sketch18.addGeometry(Part.Circle(V(7.5, 1854.498788, 0), V(0, 0, 1), 3), False)
sketch18.addGeometry(Part.Circle(V(37.5, 1854.498788, 0), V(0, 0, 1), 3), False)
sketch18.addGeometry(Part.Circle(V(37.5, 1764.498788, 0), V(0, 0, 1), 3), False)
sketch18.addGeometry(Part.Circle(V(7.5, 1764.498788, 0), V(0, 0, 1), 3), False)
sketch18.addGeometry(Part.Circle(V(7.5, 181.498788, 0), V(0, 0, 1), 3), False)
sketch18.addGeometry(Part.Circle(V(37.5, 181.498788, 0), V(0, 0, 1), 3), False)
sketch18.addGeometry(Part.Circle(V(37.5, 91.498788, 0), V(0, 0, 1), 3), False)
sketch18.addGeometry(Part.Circle(V(7.5, 91.498788, 0), V(0, 0, 1), 3), False)
sketch18.addGeometry(Part.Circle(V(7.5, 11892.498788, 0), V(0, 0, 1), 3), False)
sketch18.addGeometry(Part.Circle(V(37.5, 11892.498788, 0), V(0, 0, 1), 3), False)
sketch18.addGeometry(Part.Circle(V(37.5, 11802.498788, 0), V(0, 0, 1), 3), False)
sketch18.addGeometry(Part.Circle(V(7.5, 11802.498788, 0), V(0, 0, 1), 3), False)
sketch18.addConstraint(Sketcher.Constraint("Equal", 0, 1))
sketch18.addConstraint(Sketcher.Constraint("Equal", 1, 2))
sketch18.addConstraint(Sketcher.Constraint("Equal", 2, 3))
sketch18.addConstraint(Sketcher.Constraint("Equal", 3, 4))
sketch18.addConstraint(Sketcher.Constraint("Equal", 4, 5))
sketch18.addConstraint(Sketcher.Constraint("Equal", 5, 6))
sketch18.addConstraint(Sketcher.Constraint("Equal", 6, 7))
sketch18.addConstraint(Sketcher.Constraint("Equal", 7, 8))
sketch18.addConstraint(Sketcher.Constraint("Equal", 8, 9))
sketch18.addConstraint(Sketcher.Constraint("Equal", 9, 10))
sketch18.addConstraint(Sketcher.Constraint("Equal", 10, 11))
sketch18.addConstraint(Sketcher.Constraint("Equal", 11, 12))
sketch18.addConstraint(Sketcher.Constraint("Equal", 12, 13))
sketch18.addConstraint(Sketcher.Constraint("Equal", 13, 14))
sketch18.addConstraint(Sketcher.Constraint("Equal", 14, 15))
sketch18.addConstraint(Sketcher.Constraint("Equal", 15, 16))
sketch18.addConstraint(Sketcher.Constraint("Equal", 16, 17))
sketch18.addConstraint(Sketcher.Constraint("Equal", 17, 18))
sketch18.addConstraint(Sketcher.Constraint("Equal", 18, 19))
sketch18.addConstraint(Sketcher.Constraint("Equal", 19, 20))
sketch18.addConstraint(Sketcher.Constraint("Equal", 20, 21))
sketch18.addConstraint(Sketcher.Constraint("Equal", 21, 22))
sketch18.addConstraint(Sketcher.Constraint("Equal", 22, 23))
sketch18.addConstraint(Sketcher.Constraint("Equal", 23, 24))
sketch18.addConstraint(Sketcher.Constraint("Equal", 24, 25))
sketch18.addConstraint(Sketcher.Constraint("Equal", 25, 26))
sketch18.addConstraint(Sketcher.Constraint("Equal", 26, 27))
sketch18.addConstraint(Sketcher.Constraint("Equal", 27, 28))
sketch18.addConstraint(Sketcher.Constraint("Equal", 28, 29))
sketch18.addConstraint(Sketcher.Constraint("Equal", 29, 30))
sketch18.addConstraint(Sketcher.Constraint("Equal", 30, 31))
sketch18.addConstraint(Sketcher.Constraint("Horizontal", 0, 3, 1, 3))
sketch18.addConstraint(Sketcher.Constraint("Horizontal", 2, 3, 3, 3))
sketch18.addConstraint(Sketcher.Constraint("Horizontal", 4, 3, 5, 3))
sketch18.addConstraint(Sketcher.Constraint("Horizontal", 6, 3, 7, 3))
sketch18.addConstraint(Sketcher.Constraint("Horizontal", 8, 3, 9, 3))
sketch18.addConstraint(Sketcher.Constraint("Horizontal", 10, 3, 11, 3))
sketch18.addConstraint(Sketcher.Constraint("Horizontal", 12, 3, 13, 3))
sketch18.addConstraint(Sketcher.Constraint("Horizontal", 14, 3, 15, 3))
sketch18.addConstraint(Sketcher.Constraint("Horizontal", 16, 3, 17, 3))
sketch18.addConstraint(Sketcher.Constraint("Horizontal", 18, 3, 19, 3))
sketch18.addConstraint(Sketcher.Constraint("Horizontal", 20, 3, 21, 3))
sketch18.addConstraint(Sketcher.Constraint("Horizontal", 22, 3, 23, 3))
sketch18.addConstraint(Sketcher.Constraint("Horizontal", 24, 3, 25, 3))
sketch18.addConstraint(Sketcher.Constraint("Horizontal", 26, 3, 27, 3))
sketch18.addConstraint(Sketcher.Constraint("Horizontal", 28, 3, 29, 3))
sketch18.addConstraint(Sketcher.Constraint("Horizontal", 30, 3, 31, 3))
sketch18.addConstraint(Sketcher.Constraint("Vertical", 1, 3, 2, 3))
sketch18.addConstraint(Sketcher.Constraint("Vertical", 0, 3, 3, 3))
sketch18.addConstraint(Sketcher.Constraint("Vertical", 3, 3, 4, 3))
sketch18.addConstraint(Sketcher.Constraint("Vertical", 2, 3, 5, 3))
sketch18.addConstraint(Sketcher.Constraint("Vertical", 5, 3, 6, 3))
sketch18.addConstraint(Sketcher.Constraint("Vertical", 4, 3, 7, 3))
sketch18.addConstraint(Sketcher.Constraint("Vertical", 7, 3, 8, 3))
sketch18.addConstraint(Sketcher.Constraint("Vertical", 6, 3, 9, 3))
sketch18.addConstraint(Sketcher.Constraint("Vertical", 9, 3, 10, 3))
sketch18.addConstraint(Sketcher.Constraint("Vertical", 8, 3, 11, 3))
sketch18.addConstraint(Sketcher.Constraint("Vertical", 11, 3, 12, 3))
sketch18.addConstraint(Sketcher.Constraint("Vertical", 10, 3, 13, 3))
sketch18.addConstraint(Sketcher.Constraint("Vertical", 13, 3, 14, 3))
sketch18.addConstraint(Sketcher.Constraint("Vertical", 12, 3, 15, 3))
sketch18.addConstraint(Sketcher.Constraint("Vertical", 15, 3, 16, 3))
sketch18.addConstraint(Sketcher.Constraint("Vertical", 14, 3, 17, 3))
sketch18.addConstraint(Sketcher.Constraint("Vertical", 17, 3, 18, 3))
sketch18.addConstraint(Sketcher.Constraint("Vertical", 16, 3, 19, 3))
sketch18.addConstraint(Sketcher.Constraint("Vertical", 19, 3, 20, 3))
sketch18.addConstraint(Sketcher.Constraint("Vertical", 18, 3, 21, 3))
sketch18.addConstraint(Sketcher.Constraint("Vertical", 21, 3, 22, 3))
sketch18.addConstraint(Sketcher.Constraint("Vertical", 20, 3, 23, 3))
sketch18.addConstraint(Sketcher.Constraint("Vertical", 23, 3, 24, 3))
sketch18.addConstraint(Sketcher.Constraint("Vertical", 22, 3, 25, 3))
sketch18.addConstraint(Sketcher.Constraint("Vertical", 25, 3, 26, 3))
sketch18.addConstraint(Sketcher.Constraint("Vertical", 24, 3, 27, 3))
sketch18.addConstraint(Sketcher.Constraint("Vertical", 27, 3, 28, 3))
sketch18.addConstraint(Sketcher.Constraint("Vertical", 26, 3, 29, 3))
sketch18.addConstraint(Sketcher.Constraint("Vertical", 29, 3, 30, 3))
sketch18.addConstraint(Sketcher.Constraint("Vertical", 28, 3, 31, 3))
sketch18.addConstraint(Sketcher.Constraint("Diameter", 0, Q("6 mm")))
sketch18.addConstraint(Sketcher.Constraint("DistanceX", 0, 3, 1, 3, Q("30 mm")))
sketch18.addConstraint(Sketcher.Constraint("DistanceY", 2, 3, 1, 3, Q("90 mm")))
sketch18.addConstraint(Sketcher.Constraint("DistanceY", 4, 3, 3, 3, Q("1583 mm")))
sketch18.addConstraint(Sketcher.Constraint("DistanceY", 6, 3, 5, 3, Q("90 mm")))
sketch18.addConstraint(Sketcher.Constraint("DistanceY", 8, 3, 7, 3, Q("1583 mm")))
sketch18.addConstraint(Sketcher.Constraint("DistanceY", 10, 3, 9, 3, Q("90 mm")))
sketch18.addConstraint(Sketcher.Constraint("DistanceY", 12, 3, 11, 3, Q("1583 mm")))
sketch18.addConstraint(Sketcher.Constraint("DistanceY", 14, 3, 13, 3, Q("90 mm")))
sketch18.addConstraint(Sketcher.Constraint("DistanceY", 16, 3, 15, 3, Q("1583 mm")))
sketch18.addConstraint(Sketcher.Constraint("DistanceY", 18, 3, 17, 3, Q("90 mm")))
sketch18.addConstraint(Sketcher.Constraint("DistanceY", 20, 3, 19, 3, Q("1583 mm")))
sketch18.addConstraint(Sketcher.Constraint("DistanceY", 22, 3, 21, 3, Q("90 mm")))
sketch18.addConstraint(Sketcher.Constraint("DistanceY", 24, 3, 23, 3, Q("1583 mm")))
sketch18.addConstraint(Sketcher.Constraint("DistanceY", 26, 3, 25, 3, Q("90 mm")))
sketch18.addConstraint(Sketcher.Constraint("DistanceY", 0, 3, 28, 3, Q("1673 mm")))
sketch18.addConstraint(Sketcher.Constraint("DistanceY", 30, 3, 29, 3, Q("90 mm")))
sketch18.addConstraint(Sketcher.Constraint("DistanceX", -1, 1, 0, 3, Q("7.5 mm")))
sketch18.addConstraint(Sketcher.Constraint("DistanceY", -1, 1, 0, 3, Q("10219.498788 mm")))
sketch18.setExpression("Constraints[77]", "Params.sketch18_diameter")
pocket17 = doc.addObject("PartDesign::Pocket", "Pocket016")
body.addObject(pocket17)
pocket17.Profile = sketch18
pocket17.setExpression("Length", "Params.pocket17_length")

doc.recompute()
